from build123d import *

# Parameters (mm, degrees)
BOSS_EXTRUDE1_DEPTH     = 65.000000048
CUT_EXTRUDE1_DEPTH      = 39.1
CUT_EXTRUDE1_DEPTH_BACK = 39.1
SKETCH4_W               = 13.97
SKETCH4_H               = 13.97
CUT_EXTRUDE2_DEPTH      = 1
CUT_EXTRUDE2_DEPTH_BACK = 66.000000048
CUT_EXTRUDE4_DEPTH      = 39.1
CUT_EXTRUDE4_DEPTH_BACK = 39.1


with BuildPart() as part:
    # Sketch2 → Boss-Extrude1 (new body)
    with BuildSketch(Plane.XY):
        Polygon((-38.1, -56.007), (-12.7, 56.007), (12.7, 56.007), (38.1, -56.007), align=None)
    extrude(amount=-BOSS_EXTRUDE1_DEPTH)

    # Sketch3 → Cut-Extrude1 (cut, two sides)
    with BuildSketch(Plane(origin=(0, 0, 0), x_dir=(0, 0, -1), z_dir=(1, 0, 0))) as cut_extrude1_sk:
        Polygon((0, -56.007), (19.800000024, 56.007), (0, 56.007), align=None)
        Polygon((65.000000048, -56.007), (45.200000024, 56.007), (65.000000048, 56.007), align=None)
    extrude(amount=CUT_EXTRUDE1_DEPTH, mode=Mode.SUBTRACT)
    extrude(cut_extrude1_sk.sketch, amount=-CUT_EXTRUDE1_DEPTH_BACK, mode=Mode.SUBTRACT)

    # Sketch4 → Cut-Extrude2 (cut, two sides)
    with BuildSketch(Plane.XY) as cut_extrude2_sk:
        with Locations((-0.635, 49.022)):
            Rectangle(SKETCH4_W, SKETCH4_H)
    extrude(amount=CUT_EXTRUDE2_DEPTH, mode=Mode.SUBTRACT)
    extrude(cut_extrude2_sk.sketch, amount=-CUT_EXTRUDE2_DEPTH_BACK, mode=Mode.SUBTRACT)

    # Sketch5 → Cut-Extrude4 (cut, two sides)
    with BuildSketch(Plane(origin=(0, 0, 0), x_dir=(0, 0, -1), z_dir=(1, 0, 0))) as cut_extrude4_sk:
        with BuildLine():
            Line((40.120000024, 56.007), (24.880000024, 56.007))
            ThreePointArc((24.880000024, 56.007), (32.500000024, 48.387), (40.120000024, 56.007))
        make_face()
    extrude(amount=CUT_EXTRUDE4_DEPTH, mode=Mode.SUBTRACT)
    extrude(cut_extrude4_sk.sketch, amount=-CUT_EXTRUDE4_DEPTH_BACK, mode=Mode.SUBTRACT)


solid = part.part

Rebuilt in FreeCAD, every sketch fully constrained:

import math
import FreeCAD as App
import Part
import Sketcher
Q = App.Units.Quantity


def add_polygon(sketch, points):
    """Adds a closed chain of lines whose ends are joined by coincident constraints."""
    first, n = sketch.GeometryCount, len(points)
    for a, b in zip(points, points[1:] + points[:1]):
        sketch.addGeometry(Part.LineSegment(App.Vector(*a, 0), App.Vector(*b, 0)), False)
    for i in range(n):
        sketch.addConstraint(Sketcher.Constraint("Coincident", first + i, 2, first + (i + 1) % n, 1))

doc = App.newDocument("Part")
params = doc.addObject("Spreadsheet::Sheet", "Params")
for row, (alias, value) in enumerate([
    ("sketch1_width", "3 in"),
    ("sketch1_width2", "1 in"),
    ("pad1_length", "65 mm"),
    ("sketch2_width", "4.41 in"),
    ("sketch3_width", "0.55 in"),
    ("sketch4_radius", "0.3 in"),
], start=1):
    params.set(f"A{row}", alias)
    params.set(f"B{row}", "=" + value)
    params.setAlias(f"B{row}", alias)

body = doc.addObject("PartDesign::Body", "Body")

# Sketch on XY plane
sketch1 = body.newObject("Sketcher::SketchObject", "Sketch")
sketch1.AttachmentSupport = (doc.getObject("XY_Plane"), [""])
sketch1.MapMode = "FlatFace"
add_polygon(sketch1, [(-13, 56), (-38, -56), (38, -56), (13, 56)])  # lines 0-3
sketch1.addConstraint([
    Sketcher.Constraint("Horizontal", 1),
    Sketcher.Constraint("Horizontal", 3),
    Sketcher.Constraint("Equal", 0, 2),
    Sketcher.Constraint("DistanceX", 1, 1, 1, 2, Q("3 in")),
    Sketcher.Constraint("DistanceX", 3, 2, 3, 1, Q("1 in")),
    Sketcher.Constraint("DistanceX", 0, 2, -1, 1, Q("1.5 in")),
    Sketcher.Constraint("DistanceY", 1, 2, 2, 2, Q("4.41 in")),
    Sketcher.Constraint("DistanceY", 0, 2, -1, 1, Q("2.205 in")),
])
sketch1.setExpression("Constraints[7]", "Params.sketch1_width")
sketch1.setExpression("Constraints[8]", "Params.sketch1_width2")
pad1 = body.newObject("PartDesign::Pad", "Pad")
pad1.Profile = sketch1
pad1.setExpression("Length", "Params.pad1_length")
pad1.Reversed = True

# Sketch on YZ plane
sketch2 = body.newObject("Sketcher::SketchObject", "Sketch001")
sketch2.AttachmentSupport = (doc.getObject("YZ_Plane"), [""])
sketch2.MapMode = "FlatFace"
add_polygon(sketch2, [(-56, 0), (56, -20), (56, 0)])  # lines 0-2
add_polygon(sketch2, [(56, -45), (-56, -65), (56, -65)])  # lines 3-5
sketch2.addConstraint([
    Sketcher.Constraint("Vertical", 1),
    Sketcher.Constraint("Horizontal", 2),
    Sketcher.Constraint("Horizontal", 4),
    Sketcher.Constraint("Vertical", 5),
    Sketcher.Constraint("Symmetric", 1, 2, 2, 2, -1, 1),
    Sketcher.Constraint("Vertical", 2, 2, 3, 2),
    Sketcher.Constraint("Vertical", 1, 2, 4, 2),
    Sketcher.Constraint("Equal", 1, 5),
    Sketcher.Constraint("DistanceY", 5, 2, 0, 2, Q("1 in")),
    Sketcher.Constraint("DistanceX", 2, 2, 2, 1, Q("4.41 in")),
    Sketcher.Constraint("DistanceY", 1, 1, 1, 2, 19.8),
])
sketch2.setExpression("Constraints[15]", "Params.sketch2_width")
pocket1 = body.newObject("PartDesign::Pocket", "Pocket")
pocket1.Profile = sketch2
pocket1.Type = "ThroughAll"
pocket1.Midplane = True

# Sketch on XY plane
sketch3 = body.newObject("Sketcher::SketchObject", "Sketch002")
sketch3.AttachmentSupport = (doc.getObject("XY_Plane"), [""])
sketch3.MapMode = "FlatFace"
add_polygon(sketch3, [(-8, 56), (-8, 42), (6, 42), (6, 56)])  # lines 0-3
sketch3.addConstraint([
    Sketcher.Constraint("Vertical", 0),
    Sketcher.Constraint("Horizontal", 1),
    Sketcher.Constraint("Vertical", 2),
    Sketcher.Constraint("Horizontal", 3),
    Sketcher.Constraint("Equal", 3, 0),
    Sketcher.Constraint("DistanceX", 1, 1, 1, 2, Q("0.55 in")),
    Sketcher.Constraint("DistanceX", 0, 2, -1, 1, Q("0.3 in")),
    Sketcher.Constraint("DistanceY", -1, 1, 0, 2, Q("1.655 in")),
])
sketch3.setExpression("Constraints[9]", "Params.sketch3_width")
pocket2 = body.newObject("PartDesign::Pocket", "Pocket001")
pocket2.Profile = sketch3
pocket2.Type = "ThroughAll"
pocket2.Midplane = True

# Sketch on YZ plane
sketch4 = body.newObject("Sketcher::SketchObject", "Sketch003")
sketch4.AttachmentSupport = (doc.getObject("YZ_Plane"), [""])
sketch4.MapMode = "FlatFace"
sketch4.addGeometry([
    Part.LineSegment(App.Vector(56, -40, 0), App.Vector(56, -25, 0)),
    Part.ArcOfCircle(Part.Circle(App.Vector(56, -33, 0), App.Vector(0, 0, 1), 8), math.radians(90), math.radians(270)),
], False)
sketch4.addConstraint([
    Sketcher.Constraint("Coincident", 0, 1, 1, 2),
    Sketcher.Constraint("Coincident", 1, 1, 0, 2),
    Sketcher.Constraint("Vertical", 0),
    Sketcher.Constraint("Vertical", 1, 3, 0, 1),
    Sketcher.Constraint("Radius", 1, Q("0.3 in")),
    Sketcher.Constraint("DistanceX", -1, 1, 1, 3, Q("2.205 in")),
    Sketcher.Constraint("DistanceY", 1, 3, -1, 1, 32.5),
])
sketch4.setExpression("Constraints[4]", "Params.sketch4_radius")
pocket3 = body.newObject("PartDesign::Pocket", "Pocket002")
pocket3.Profile = sketch4
pocket3.Type = "ThroughAll"
pocket3.Midplane = True

doc.recompute()
